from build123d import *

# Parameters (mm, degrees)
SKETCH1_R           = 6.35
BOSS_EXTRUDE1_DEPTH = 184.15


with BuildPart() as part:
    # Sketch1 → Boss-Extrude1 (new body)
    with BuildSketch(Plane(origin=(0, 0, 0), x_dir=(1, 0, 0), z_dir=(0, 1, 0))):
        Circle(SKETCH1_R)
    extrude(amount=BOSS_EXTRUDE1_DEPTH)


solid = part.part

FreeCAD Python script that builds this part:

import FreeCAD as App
import Part
import Sketcher
from FreeCAD import Vector
Q = App.Units.Quantity

doc = App.newDocument("Part")
body = doc.addObject("PartDesign::Body", "Body")

# Sketch on XZ plane
sketch1 = body.newObject("Sketcher::SketchObject", "Sketch")
sketch1.AttachmentSupport = (doc.getObject("XZ_Plane"), [""])
sketch1.MapMode = "FlatFace"
sketch1.addGeometry(Part.Circle(Vector(0, 0, 0), Vector(0, 0, 1), 6), False)
sketch1.addConstraint(Sketcher.Constraint("Coincident", 0, 3, -1, 1))
sketch1.addConstraint(Sketcher.Constraint("Diameter", 0, Q("0.5 in")))
pad1 = body.newObject("PartDesign::Pad", "Pad")
pad1.Profile = sketch1
pad1.Length = Q("7.25 in")
pad1.Reversed = True

doc.recompute()
